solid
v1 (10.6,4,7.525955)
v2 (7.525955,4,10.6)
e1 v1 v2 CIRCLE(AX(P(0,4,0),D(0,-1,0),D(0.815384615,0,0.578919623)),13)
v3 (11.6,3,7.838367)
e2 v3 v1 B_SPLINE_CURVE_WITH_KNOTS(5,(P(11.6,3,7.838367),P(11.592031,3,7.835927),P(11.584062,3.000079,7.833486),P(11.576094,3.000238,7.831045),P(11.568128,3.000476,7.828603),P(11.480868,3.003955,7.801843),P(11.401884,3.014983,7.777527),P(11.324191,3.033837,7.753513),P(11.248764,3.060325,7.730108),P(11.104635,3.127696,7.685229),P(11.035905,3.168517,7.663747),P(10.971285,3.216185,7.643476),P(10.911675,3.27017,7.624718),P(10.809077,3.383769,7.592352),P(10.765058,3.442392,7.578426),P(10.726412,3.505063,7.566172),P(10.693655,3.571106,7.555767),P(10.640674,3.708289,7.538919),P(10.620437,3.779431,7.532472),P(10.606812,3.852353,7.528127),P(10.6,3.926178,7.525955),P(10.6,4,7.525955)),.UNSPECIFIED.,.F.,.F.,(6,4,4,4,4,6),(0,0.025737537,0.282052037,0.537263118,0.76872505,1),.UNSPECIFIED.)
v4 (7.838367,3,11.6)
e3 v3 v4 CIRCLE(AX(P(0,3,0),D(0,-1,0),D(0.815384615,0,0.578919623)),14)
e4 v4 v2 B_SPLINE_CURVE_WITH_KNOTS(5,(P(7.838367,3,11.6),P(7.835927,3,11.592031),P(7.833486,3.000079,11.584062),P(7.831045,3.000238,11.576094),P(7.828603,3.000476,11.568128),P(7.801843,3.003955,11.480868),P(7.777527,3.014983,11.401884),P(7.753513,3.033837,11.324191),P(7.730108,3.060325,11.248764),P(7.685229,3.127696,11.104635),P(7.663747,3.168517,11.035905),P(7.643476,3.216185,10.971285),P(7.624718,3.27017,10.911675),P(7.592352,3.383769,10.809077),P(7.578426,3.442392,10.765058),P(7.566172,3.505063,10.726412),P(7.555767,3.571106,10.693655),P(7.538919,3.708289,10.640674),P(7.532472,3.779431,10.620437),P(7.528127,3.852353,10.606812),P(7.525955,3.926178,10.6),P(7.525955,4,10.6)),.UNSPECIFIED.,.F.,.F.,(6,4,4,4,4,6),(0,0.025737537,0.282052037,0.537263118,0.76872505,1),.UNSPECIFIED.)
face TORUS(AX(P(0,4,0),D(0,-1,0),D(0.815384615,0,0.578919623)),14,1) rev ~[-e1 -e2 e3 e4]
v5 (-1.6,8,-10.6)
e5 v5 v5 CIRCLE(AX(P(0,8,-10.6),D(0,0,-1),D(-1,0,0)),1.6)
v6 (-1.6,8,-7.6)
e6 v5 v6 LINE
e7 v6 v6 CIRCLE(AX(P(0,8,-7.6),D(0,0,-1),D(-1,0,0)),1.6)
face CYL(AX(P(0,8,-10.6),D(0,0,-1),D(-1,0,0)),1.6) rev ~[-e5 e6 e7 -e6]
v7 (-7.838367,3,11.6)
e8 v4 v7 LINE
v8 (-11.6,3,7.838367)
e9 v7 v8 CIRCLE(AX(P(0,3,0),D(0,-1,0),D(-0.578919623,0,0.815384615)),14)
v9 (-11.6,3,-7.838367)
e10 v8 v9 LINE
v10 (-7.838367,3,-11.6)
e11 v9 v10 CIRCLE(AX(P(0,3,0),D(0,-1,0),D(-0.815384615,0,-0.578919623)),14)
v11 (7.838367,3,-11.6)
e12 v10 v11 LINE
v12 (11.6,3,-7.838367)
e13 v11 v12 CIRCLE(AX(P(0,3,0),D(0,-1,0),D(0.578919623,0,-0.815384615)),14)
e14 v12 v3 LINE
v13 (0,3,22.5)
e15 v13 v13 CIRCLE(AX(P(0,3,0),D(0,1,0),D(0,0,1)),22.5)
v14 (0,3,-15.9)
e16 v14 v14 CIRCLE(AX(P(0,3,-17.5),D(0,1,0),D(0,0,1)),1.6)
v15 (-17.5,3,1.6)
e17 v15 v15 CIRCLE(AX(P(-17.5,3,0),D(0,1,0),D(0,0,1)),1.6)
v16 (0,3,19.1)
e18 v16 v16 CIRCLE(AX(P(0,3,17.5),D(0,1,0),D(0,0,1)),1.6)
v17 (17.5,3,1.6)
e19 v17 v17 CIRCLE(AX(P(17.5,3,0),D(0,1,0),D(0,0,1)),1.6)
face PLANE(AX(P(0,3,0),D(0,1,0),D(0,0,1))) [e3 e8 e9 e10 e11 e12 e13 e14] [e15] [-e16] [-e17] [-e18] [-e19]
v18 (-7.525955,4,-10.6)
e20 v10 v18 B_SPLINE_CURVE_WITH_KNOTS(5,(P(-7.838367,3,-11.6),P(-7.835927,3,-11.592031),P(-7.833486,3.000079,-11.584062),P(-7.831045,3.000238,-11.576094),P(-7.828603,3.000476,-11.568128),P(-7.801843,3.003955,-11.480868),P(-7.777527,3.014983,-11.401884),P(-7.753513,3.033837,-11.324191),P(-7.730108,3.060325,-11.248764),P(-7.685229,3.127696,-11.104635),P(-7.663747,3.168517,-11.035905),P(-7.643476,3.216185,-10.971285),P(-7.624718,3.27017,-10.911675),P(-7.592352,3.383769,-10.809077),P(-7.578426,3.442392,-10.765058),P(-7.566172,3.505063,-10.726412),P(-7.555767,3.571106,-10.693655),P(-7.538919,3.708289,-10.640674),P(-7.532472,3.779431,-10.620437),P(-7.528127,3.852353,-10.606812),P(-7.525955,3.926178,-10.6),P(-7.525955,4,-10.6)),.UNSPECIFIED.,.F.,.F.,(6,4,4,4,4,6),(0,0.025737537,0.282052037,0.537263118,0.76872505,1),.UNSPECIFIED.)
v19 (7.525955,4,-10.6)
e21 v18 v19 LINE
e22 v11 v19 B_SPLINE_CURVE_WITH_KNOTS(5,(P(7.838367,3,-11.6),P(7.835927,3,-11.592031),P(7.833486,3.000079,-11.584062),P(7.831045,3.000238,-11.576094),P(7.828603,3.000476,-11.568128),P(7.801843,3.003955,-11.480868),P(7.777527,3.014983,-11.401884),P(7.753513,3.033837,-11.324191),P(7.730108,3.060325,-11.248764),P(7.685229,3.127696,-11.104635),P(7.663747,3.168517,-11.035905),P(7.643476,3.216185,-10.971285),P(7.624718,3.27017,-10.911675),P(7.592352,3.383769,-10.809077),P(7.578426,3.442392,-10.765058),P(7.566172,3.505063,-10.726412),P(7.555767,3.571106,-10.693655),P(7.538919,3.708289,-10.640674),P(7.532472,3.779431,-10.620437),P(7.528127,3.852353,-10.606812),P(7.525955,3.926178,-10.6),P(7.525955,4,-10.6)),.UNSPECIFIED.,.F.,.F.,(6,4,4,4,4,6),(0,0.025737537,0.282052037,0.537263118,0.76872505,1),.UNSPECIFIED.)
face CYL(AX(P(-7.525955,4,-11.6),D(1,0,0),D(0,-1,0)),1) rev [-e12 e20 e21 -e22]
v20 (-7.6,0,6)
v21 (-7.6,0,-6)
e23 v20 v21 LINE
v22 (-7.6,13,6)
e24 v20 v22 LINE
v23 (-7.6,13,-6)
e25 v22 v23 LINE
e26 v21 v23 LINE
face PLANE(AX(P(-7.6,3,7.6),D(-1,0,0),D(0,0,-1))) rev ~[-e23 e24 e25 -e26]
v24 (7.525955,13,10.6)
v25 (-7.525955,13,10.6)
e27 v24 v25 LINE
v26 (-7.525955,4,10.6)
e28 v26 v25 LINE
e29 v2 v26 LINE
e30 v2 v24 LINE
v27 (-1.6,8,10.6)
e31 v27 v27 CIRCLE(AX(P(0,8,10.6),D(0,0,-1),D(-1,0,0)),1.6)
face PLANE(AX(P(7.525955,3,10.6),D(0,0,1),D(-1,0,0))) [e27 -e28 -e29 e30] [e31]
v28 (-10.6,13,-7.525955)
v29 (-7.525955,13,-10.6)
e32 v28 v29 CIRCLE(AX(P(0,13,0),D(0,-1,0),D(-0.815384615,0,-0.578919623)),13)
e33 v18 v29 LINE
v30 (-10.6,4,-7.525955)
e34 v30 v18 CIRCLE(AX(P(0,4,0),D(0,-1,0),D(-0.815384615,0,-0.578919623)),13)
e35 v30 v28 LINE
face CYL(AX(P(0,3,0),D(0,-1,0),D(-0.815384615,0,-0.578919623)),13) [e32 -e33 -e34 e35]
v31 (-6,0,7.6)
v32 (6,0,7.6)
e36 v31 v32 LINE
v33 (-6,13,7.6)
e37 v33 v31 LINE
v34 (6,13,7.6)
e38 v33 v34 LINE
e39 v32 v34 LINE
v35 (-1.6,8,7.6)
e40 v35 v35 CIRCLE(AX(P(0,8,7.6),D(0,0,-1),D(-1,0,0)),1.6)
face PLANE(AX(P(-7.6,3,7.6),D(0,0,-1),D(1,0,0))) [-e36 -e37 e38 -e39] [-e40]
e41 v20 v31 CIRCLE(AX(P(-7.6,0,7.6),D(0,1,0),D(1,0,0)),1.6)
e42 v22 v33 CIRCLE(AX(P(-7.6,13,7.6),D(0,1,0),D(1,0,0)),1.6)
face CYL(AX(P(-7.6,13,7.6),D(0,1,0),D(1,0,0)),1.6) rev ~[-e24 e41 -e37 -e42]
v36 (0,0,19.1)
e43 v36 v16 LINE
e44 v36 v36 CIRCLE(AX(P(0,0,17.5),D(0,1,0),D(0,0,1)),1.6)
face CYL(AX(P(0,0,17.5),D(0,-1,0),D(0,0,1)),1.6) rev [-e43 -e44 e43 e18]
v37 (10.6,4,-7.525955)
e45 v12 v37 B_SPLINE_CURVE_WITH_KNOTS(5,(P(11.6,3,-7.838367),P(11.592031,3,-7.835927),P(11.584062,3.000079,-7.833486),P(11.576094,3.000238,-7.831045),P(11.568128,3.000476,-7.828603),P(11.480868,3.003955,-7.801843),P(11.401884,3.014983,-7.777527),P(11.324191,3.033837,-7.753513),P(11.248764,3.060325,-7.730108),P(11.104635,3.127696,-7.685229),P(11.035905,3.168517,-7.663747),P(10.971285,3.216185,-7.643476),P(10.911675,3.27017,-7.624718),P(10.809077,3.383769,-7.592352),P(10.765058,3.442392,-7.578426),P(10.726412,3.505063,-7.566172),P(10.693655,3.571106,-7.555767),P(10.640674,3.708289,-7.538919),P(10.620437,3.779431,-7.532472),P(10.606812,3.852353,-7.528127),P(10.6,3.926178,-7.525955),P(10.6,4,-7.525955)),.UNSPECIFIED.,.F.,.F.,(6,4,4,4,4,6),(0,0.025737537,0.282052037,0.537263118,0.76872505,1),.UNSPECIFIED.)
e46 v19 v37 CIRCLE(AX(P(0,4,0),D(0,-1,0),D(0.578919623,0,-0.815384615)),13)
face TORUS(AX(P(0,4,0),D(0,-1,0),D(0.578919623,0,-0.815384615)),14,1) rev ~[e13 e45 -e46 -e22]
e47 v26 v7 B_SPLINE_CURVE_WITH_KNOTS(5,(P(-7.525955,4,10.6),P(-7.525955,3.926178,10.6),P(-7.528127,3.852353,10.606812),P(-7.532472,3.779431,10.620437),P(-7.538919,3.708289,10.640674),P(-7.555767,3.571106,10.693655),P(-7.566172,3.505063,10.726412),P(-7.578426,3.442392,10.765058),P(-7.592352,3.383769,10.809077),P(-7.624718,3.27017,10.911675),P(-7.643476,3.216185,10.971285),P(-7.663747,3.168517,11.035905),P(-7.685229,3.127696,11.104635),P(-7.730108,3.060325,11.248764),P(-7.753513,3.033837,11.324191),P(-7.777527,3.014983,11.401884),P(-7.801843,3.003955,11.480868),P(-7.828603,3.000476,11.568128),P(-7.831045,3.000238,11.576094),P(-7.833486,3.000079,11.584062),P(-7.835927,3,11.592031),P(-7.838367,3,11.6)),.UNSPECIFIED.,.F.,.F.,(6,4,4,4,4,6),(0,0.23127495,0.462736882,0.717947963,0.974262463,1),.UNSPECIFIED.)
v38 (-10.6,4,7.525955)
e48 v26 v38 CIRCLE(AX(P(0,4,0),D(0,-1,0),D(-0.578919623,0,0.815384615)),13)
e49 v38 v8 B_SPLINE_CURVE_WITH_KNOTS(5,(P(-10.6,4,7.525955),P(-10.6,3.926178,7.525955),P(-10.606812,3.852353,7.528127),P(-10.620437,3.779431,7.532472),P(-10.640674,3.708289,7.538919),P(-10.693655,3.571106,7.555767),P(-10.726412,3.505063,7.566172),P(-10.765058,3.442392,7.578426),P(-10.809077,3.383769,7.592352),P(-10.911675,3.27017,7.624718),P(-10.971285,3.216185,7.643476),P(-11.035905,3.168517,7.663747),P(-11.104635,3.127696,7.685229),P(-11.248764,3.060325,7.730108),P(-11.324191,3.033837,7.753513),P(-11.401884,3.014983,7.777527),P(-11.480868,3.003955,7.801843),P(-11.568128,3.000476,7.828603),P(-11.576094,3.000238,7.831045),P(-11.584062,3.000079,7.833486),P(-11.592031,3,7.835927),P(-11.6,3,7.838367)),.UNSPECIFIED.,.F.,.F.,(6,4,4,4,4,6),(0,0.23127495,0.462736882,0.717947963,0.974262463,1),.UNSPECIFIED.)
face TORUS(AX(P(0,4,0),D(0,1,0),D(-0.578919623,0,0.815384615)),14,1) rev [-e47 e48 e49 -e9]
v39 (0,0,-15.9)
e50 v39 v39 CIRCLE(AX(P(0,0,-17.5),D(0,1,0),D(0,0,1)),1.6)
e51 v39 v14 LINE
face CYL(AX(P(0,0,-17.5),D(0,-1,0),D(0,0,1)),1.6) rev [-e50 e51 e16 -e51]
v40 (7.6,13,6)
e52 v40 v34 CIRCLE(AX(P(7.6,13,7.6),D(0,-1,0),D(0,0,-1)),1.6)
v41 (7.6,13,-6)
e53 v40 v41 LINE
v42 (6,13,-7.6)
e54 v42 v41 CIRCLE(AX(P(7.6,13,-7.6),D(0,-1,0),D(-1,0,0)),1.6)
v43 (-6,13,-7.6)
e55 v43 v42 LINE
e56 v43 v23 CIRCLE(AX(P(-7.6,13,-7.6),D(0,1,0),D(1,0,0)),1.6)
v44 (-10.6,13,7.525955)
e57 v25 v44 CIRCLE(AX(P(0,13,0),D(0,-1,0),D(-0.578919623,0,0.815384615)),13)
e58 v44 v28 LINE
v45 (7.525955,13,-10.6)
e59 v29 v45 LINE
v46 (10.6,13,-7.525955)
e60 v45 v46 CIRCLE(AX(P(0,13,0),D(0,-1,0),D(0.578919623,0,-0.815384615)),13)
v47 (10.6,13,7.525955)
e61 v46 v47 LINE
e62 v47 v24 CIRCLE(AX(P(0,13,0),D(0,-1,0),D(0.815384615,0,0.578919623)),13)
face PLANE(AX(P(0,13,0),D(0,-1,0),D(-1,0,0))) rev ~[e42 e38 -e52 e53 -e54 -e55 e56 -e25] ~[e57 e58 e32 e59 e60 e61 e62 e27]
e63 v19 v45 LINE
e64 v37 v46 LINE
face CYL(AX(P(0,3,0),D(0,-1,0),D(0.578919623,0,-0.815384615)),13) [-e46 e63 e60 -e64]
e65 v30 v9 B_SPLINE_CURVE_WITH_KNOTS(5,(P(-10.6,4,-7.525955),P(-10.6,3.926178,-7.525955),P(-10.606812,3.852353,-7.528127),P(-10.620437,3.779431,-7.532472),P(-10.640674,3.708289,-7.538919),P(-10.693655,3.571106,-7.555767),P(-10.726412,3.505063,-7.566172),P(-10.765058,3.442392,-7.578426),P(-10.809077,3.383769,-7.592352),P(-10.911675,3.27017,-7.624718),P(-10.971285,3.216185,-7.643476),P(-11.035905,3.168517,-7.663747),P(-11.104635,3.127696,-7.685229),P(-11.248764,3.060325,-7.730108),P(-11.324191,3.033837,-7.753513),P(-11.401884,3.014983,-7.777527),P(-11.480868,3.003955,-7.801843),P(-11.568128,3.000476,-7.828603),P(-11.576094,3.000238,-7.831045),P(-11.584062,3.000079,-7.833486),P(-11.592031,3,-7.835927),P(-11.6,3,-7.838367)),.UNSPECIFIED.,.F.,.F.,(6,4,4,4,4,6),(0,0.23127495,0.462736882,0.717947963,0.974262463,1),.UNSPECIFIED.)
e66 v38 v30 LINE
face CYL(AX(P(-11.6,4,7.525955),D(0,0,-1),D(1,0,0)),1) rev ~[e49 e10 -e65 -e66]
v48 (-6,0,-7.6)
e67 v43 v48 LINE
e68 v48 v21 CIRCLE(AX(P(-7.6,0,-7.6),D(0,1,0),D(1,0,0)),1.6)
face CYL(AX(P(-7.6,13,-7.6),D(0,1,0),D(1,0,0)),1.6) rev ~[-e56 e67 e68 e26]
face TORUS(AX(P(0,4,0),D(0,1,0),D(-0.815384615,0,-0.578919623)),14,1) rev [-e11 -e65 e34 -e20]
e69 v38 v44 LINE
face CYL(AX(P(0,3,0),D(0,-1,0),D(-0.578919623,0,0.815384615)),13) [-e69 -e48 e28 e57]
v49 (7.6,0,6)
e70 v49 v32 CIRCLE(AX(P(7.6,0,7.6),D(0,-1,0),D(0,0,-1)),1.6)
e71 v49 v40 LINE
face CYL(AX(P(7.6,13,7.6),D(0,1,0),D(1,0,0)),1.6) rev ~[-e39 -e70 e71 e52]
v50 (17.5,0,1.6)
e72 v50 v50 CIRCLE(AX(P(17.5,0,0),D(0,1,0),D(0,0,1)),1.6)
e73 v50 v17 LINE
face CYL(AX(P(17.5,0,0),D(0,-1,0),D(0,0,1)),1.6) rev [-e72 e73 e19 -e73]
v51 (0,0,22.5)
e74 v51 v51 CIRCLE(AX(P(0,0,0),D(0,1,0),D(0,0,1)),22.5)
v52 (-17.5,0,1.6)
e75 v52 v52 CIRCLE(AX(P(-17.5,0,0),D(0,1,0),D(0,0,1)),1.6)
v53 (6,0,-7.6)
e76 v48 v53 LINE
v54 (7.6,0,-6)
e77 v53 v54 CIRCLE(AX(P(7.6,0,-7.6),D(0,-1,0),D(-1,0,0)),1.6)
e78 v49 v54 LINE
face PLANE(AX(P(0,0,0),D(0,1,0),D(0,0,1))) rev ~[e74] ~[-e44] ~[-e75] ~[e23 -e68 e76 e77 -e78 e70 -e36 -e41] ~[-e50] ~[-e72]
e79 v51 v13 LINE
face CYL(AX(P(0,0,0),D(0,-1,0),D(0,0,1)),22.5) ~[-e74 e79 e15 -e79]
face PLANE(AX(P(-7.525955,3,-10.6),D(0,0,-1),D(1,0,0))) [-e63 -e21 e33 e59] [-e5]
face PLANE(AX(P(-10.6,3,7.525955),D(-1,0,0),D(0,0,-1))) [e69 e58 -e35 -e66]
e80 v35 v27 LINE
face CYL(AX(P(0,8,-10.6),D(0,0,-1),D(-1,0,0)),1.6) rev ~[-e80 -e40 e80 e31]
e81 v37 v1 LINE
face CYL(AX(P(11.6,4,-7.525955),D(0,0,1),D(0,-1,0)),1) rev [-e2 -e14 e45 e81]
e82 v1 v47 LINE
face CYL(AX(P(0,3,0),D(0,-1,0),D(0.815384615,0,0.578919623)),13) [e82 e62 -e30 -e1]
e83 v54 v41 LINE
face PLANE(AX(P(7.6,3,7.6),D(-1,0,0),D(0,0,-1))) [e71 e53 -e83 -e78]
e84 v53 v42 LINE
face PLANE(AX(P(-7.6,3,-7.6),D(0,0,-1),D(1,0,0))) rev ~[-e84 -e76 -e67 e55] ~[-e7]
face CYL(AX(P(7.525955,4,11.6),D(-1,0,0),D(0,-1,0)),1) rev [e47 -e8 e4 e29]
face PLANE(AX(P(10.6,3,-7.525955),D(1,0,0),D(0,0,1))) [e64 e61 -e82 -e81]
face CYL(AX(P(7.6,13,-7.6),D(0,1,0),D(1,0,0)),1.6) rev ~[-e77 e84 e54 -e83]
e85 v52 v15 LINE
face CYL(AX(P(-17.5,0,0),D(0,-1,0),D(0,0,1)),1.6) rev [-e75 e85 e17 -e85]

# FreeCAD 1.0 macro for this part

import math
import FreeCAD as App
import Part
import Sketcher
from FreeCAD import Vector


def edges_at(feature, points):
    """Names of the edges that pass closest to the given points."""
    edges = feature.Shape.Edges
    near = lambda p: min(range(len(edges)), key=lambda i: edges[i].distToShape(Part.Vertex(*p))[0])
    return sorted({f"Edge{near(p) + 1}" for p in points})

doc = App.newDocument("Part")
body = doc.addObject("PartDesign::Body", "Body")

# Sketch on XZ plane
sketch1 = doc.addObject("Sketcher::SketchObject", "Sketch")
body.addObject(sketch1)
sketch1.AttachmentSupport = (doc.XZ_Plane, [""])
sketch1.MapMode = "FlatFace"
sketch1.addGeometry([
    Part.Circle(Vector(0, 0, 0), Vector(0, 0, 1), 22.5),  # 0
    Part.Circle(Vector(0, -17.5, 0), Vector(0, 0, 1), 1.6),  # 1
    Part.LineSegment(Vector(7.6, 7.6, 0), Vector(-7.6, 7.6, 0)),  # 2
    Part.LineSegment(Vector(-7.6, 7.6, 0), Vector(-7.6, -7.6, 0)),  # 3
    Part.LineSegment(Vector(-7.6, -7.6, 0), Vector(7.6, -7.6, 0)),  # 4
    Part.LineSegment(Vector(7.6, -7.6, 0), Vector(7.6, 7.6, 0)),  # 5
    Part.Circle(Vector(-17.5, 0, 0), Vector(0, 0, 1), 1.6),  # 6
    Part.Circle(Vector(17.5, 0, 0), Vector(0, 0, 1), 1.6),  # 7
    Part.Circle(Vector(0, 17.5, 0), Vector(0, 0, 1), 1.6),  # 8
], False)
sketch1.addConstraint([
    Sketcher.Constraint("Coincident", 2, 2, 3, 1),
    Sketcher.Constraint("Coincident", 3, 2, 4, 1),
    Sketcher.Constraint("Coincident", 4, 2, 5, 1),
    Sketcher.Constraint("Coincident", 5, 2, 2, 1),
    Sketcher.Constraint("Horizontal", 2),
    Sketcher.Constraint("Vertical", 3),
    Sketcher.Constraint("Horizontal", 4),
    Sketcher.Constraint("Vertical", 5),
    Sketcher.Constraint("Coincident", 0, 3, -1, 1),
    Sketcher.Constraint("Equal", 1, 6),
    Sketcher.Constraint("Equal", 6, 7),
    Sketcher.Constraint("Equal", 7, 8),
    Sketcher.Constraint("Symmetric", 6, 3, 7, 3, -1, 1),
    Sketcher.Constraint("Symmetric", 1, 3, 8, 3, -1, 1),
    Sketcher.Constraint("Symmetric", 2, 2, 4, 2, -1, 1),
    Sketcher.Constraint("PointOnObject", 1, 3, -2),
    Sketcher.Constraint("PointOnObject", 6, 3, -1),
    Sketcher.Constraint("Equal", 4, 3),
    Sketcher.Constraint("Diameter", 0, 45.0),
    Sketcher.Constraint("Diameter", 1, 3.2),
    Sketcher.Constraint("DistanceX", 2, 2, 2, 1, 15.2),
    Sketcher.Constraint("DistanceX", 6, 3, 7, 3, 35.0),
    Sketcher.Constraint("DistanceY", 1, 3, 8, 3, 35.0),
])
pad1 = doc.addObject("PartDesign::Pad", "Pad")
body.addObject(pad1)
pad1.Profile = sketch1
pad1.Length = 3
pad1.Reversed = True

# Sketch on XZ plane
sketch2 = doc.addObject("Sketcher::SketchObject", "Sketch001")
body.addObject(sketch2)
sketch2.AttachmentSupport = (doc.XZ_Plane, [""])
sketch2.MapMode = "FlatFace"
sketch2.AttachmentOffset = App.Placement(Vector(0, 0, -3), App.Rotation())
sketch2.addGeometry([
    Part.LineSegment(Vector(-10.6, -7.5, 0), Vector(-10.6, 7.5, 0)),  # 0
    Part.ArcOfCircle(Part.Circle(Vector(0, 0, 0), Vector(0, 0, 1), 13), math.radians(125.37), math.radians(144.63)),  # 1
    Part.LineSegment(Vector(-7.5, 10.6, 0), Vector(7.5, 10.6, 0)),  # 2
    Part.ArcOfCircle(Part.Circle(Vector(0, 0, 0), Vector(0, 0, 1), 13), math.radians(35.37), math.radians(54.63)),  # 3
    Part.LineSegment(Vector(10.6, 7.5, 0), Vector(10.6, -7.5, 0)),  # 4
    Part.ArcOfCircle(Part.Circle(Vector(0, 0, 0), Vector(0, 0, 1), 13), math.radians(-54.63), math.radians(-35.37)),  # 5
    Part.LineSegment(Vector(7.5, -10.6, 0), Vector(-7.5, -10.6, 0)),  # 6
    Part.ArcOfCircle(Part.Circle(Vector(0, 0, 0), Vector(0, 0, 1), 13), math.radians(-144.63), math.radians(-125.37)),  # 7
    Part.LineSegment(Vector(-7.6, 7.6, 0), Vector(-7.6, -7.6, 0)),  # 8
    Part.LineSegment(Vector(-7.6, -7.6, 0), Vector(7.6, -7.6, 0)),  # 9
    Part.LineSegment(Vector(7.6, -7.6, 0), Vector(7.6, 7.6, 0)),  # 10
    Part.LineSegment(Vector(7.6, 7.6, 0), Vector(-7.6, 7.6, 0)),  # 11
], False)
sketch2.addConstraint([
    Sketcher.Constraint("Coincident", 0, 2, 1, 2),
    Sketcher.Constraint("Coincident", 1, 1, 2, 1),
    Sketcher.Constraint("Coincident", 2, 2, 3, 2),
    Sketcher.Constraint("Coincident", 3, 1, 4, 1),
    Sketcher.Constraint("Coincident", 4, 2, 5, 2),
    Sketcher.Constraint("Coincident", 5, 1, 6, 1),
    Sketcher.Constraint("Coincident", 6, 2, 7, 2),
    Sketcher.Constraint("Coincident", 7, 1, 0, 1),
    Sketcher.Constraint("Coincident", 8, 2, 9, 1),
    Sketcher.Constraint("Coincident", 9, 2, 10, 1),
    Sketcher.Constraint("Coincident", 10, 2, 11, 1),
    Sketcher.Constraint("Coincident", 11, 2, 8, 1),
    Sketcher.Constraint("Vertical", 0),
    Sketcher.Constraint("Horizontal", 2),
    Sketcher.Constraint("Vertical", 4),
    Sketcher.Constraint("Horizontal", 6),
    Sketcher.Constraint("Vertical", 8),
    Sketcher.Constraint("Horizontal", 9),
    Sketcher.Constraint("Vertical", 10),
    Sketcher.Constraint("Horizontal", 11),
    Sketcher.Constraint("Coincident", 1, 3, -1, 1),
    Sketcher.Constraint("Coincident", 3, 3, -1, 1),
    Sketcher.Constraint("Coincident", 5, 3, -1, 1),
    Sketcher.Constraint("Coincident", 7, 3, -1, 1),
    Sketcher.Constraint("Equal", 1, 3),
    Sketcher.Constraint("Equal", 3, 5),
    Sketcher.Constraint("Equal", 5, 7),
    Sketcher.Constraint("Symmetric", 8, 2, 10, 2, -1, 1),
    Sketcher.Constraint("Horizontal", 0, 2, 3, 1),
    Sketcher.Constraint("Vertical", 2, 2, 5, 1),
    Sketcher.Constraint("Equal", 6, 0),
    Sketcher.Constraint("Equal", 11, 8),
    Sketcher.Constraint("Radius", 1, 13.0),
    Sketcher.Constraint("DistanceX", 9, 1, 9, 2, 15.2),
    Sketcher.Constraint("DistanceY", 6, 2, 8, 2, 3.0),
])
pad2 = doc.addObject("PartDesign::Pad", "Pad001")
body.addObject(pad2)
pad2.Profile = sketch2
pad2.Length = 10
pad2.Reversed = True

# Sketch on XY plane
sketch3 = doc.addObject("Sketcher::SketchObject", "Sketch002")
body.addObject(sketch3)
sketch3.AttachmentSupport = (doc.XY_Plane, [""])
sketch3.MapMode = "FlatFace"
sketch3.AttachmentOffset = App.Placement(Vector(0, 0, -10.6), App.Rotation())
sketch3.addGeometry(Part.Circle(Vector(0, 8, 0), Vector(0, 0, 1), 1.6), False)
sketch3.addConstraint([
    Sketcher.Constraint("PointOnObject", 0, 3, -2),
    Sketcher.Constraint("Diameter", 0, 3.2),
    Sketcher.Constraint("DistanceY", -1, 1, 0, 3, 8.0),
])
pocket1 = doc.addObject("PartDesign::Pocket", "Pocket")
body.addObject(pocket1)
pocket1.Profile = sketch3
pocket1.Type = "ThroughAll"
pocket1.Reversed = True
doc.recompute()

fillet = doc.addObject("PartDesign::Fillet", "Fillet")
body.addObject(fillet)
fillet.Base = (pocket1, edges_at(pocket1, [
    (9.192, 3, 9.192),
    (10.6, 3, 0),
    (9.192, 3, -9.192),
    (0, 3, -10.6),
    (-9.192, 3, -9.192),
    (-10.6, 3, 0),
    (-9.192, 3, 9.192),
    (0, 3, 10.6),
]))
fillet.Radius = 1

# Sketch on XZ plane
sketch4 = doc.addObject("Sketcher::SketchObject", "Sketch003")
body.addObject(sketch4)
sketch4.AttachmentSupport = (doc.XZ_Plane, [""])
sketch4.MapMode = "FlatFace"
sketch4.AttachmentOffset = App.Placement(Vector(0, 0, -13), App.Rotation())
sketch4.addGeometry([
    Part.Circle(Vector(7.6, -7.6, 0), Vector(0, 0, 1), 1.6),
    Part.Circle(Vector(7.6, 7.6, 0), Vector(0, 0, 1), 1.6),
    Part.Circle(Vector(-7.6, 7.6, 0), Vector(0, 0, 1), 1.6),
    Part.Circle(Vector(-7.6, -7.6, 0), Vector(0, 0, 1), 1.6),
], False)
sketch4.addConstraint([
    Sketcher.Constraint("Equal", 0, 1),
    Sketcher.Constraint("Equal", 1, 2),
    Sketcher.Constraint("Equal", 2, 3),
    Sketcher.Constraint("Symmetric", 0, 3, 2, 3, -1, 1),
    Sketcher.Constraint("Symmetric", 1, 3, 3, 3, -1, 1),
    Sketcher.Constraint("Symmetric", 1, 3, 2, 3, -2),
    Sketcher.Constraint("Diameter", 0, 3.2),
    Sketcher.Constraint("DistanceX", -1, 1, 0, 3, 7.6),
    Sketcher.Constraint("DistanceY", 0, 3, -1, 1, 7.6),
])
pocket2 = doc.addObject("PartDesign::Pocket", "Pocket001")
body.addObject(pocket2)
pocket2.Profile = sketch4
pocket2.Type = "ThroughAll"
pocket2.Reversed = True

doc.recompute()
